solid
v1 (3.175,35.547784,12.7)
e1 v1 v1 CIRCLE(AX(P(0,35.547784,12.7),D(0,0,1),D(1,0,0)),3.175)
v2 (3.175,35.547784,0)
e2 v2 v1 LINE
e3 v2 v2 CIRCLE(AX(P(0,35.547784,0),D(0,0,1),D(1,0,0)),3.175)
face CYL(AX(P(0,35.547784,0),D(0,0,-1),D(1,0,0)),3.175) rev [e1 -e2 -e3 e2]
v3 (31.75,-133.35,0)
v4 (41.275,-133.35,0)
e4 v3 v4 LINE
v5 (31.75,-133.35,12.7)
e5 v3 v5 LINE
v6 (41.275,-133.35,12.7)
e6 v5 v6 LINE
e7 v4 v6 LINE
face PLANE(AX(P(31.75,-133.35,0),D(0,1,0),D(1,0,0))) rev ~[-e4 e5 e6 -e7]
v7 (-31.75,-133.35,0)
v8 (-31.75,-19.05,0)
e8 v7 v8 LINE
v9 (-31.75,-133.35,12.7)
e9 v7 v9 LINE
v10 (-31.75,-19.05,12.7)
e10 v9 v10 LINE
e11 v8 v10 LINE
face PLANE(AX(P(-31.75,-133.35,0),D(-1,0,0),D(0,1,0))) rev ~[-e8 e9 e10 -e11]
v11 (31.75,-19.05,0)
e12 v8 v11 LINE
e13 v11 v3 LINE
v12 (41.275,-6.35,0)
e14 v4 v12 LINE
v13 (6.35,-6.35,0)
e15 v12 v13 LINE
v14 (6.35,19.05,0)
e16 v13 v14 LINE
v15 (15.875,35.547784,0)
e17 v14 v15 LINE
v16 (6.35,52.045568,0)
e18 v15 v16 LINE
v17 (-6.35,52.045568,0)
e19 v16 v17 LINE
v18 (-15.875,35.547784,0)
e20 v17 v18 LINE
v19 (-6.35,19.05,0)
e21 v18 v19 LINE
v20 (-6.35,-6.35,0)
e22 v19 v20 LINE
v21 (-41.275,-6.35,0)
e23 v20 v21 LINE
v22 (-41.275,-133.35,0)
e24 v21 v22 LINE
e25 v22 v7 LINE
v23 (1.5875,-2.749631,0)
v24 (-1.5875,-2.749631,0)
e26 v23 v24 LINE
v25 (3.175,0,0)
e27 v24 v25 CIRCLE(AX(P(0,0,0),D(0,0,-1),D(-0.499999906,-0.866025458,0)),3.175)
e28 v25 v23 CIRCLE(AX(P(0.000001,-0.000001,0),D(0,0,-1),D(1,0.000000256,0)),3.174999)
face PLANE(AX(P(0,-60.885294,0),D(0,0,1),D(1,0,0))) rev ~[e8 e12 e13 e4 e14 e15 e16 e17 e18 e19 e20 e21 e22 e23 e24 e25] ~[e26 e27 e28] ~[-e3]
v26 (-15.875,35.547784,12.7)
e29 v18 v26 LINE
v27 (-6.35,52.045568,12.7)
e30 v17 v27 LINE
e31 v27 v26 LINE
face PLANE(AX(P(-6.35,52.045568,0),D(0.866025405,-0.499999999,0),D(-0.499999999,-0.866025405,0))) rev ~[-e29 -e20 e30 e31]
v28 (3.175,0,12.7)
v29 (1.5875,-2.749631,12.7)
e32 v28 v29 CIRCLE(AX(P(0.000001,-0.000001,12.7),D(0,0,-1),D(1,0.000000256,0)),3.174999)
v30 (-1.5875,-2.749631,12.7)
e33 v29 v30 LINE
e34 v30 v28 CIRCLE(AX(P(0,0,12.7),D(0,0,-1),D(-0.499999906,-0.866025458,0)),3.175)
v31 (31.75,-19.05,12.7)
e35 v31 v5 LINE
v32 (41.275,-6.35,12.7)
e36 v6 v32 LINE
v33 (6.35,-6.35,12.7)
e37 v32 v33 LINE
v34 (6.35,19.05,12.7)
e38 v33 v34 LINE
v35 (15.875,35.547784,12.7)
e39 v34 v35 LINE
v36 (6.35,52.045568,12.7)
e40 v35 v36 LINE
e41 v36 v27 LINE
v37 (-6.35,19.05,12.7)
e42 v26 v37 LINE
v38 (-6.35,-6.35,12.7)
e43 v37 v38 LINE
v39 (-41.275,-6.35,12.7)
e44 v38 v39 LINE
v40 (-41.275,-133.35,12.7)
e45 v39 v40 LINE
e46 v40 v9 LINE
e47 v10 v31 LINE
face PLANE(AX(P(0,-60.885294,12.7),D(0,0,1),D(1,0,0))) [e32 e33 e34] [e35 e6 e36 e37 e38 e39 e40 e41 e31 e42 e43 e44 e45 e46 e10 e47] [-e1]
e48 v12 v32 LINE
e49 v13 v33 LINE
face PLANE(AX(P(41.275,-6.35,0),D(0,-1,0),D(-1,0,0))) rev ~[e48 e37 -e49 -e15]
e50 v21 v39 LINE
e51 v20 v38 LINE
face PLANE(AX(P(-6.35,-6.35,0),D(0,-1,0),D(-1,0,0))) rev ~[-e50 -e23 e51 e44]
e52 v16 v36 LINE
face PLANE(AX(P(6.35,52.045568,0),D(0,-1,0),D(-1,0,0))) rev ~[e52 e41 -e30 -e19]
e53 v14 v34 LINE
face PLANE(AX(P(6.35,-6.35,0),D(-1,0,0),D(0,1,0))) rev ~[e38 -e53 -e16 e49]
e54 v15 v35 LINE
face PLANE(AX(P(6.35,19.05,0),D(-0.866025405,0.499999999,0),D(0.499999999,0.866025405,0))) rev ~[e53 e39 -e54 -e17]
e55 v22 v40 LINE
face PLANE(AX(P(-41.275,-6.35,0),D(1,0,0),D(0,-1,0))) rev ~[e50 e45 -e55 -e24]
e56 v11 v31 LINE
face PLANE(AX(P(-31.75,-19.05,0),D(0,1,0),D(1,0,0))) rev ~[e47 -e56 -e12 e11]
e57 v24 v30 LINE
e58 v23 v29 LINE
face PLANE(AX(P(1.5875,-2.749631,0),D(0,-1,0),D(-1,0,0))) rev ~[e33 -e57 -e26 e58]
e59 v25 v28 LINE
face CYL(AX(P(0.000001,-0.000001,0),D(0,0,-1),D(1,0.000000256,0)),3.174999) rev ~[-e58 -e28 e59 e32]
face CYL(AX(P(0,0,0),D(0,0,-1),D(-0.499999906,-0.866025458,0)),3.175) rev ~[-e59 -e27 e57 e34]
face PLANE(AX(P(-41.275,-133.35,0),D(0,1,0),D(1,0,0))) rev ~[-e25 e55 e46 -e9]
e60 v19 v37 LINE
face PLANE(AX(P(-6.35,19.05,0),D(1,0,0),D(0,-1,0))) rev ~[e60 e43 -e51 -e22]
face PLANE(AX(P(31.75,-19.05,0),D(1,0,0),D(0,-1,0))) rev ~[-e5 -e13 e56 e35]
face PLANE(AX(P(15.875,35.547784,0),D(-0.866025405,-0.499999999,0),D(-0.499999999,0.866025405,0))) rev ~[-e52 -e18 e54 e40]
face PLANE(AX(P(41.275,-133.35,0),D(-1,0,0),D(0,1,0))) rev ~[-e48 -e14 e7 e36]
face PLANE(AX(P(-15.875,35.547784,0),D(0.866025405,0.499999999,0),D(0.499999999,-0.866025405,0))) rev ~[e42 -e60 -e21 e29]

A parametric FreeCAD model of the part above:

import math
import FreeCAD as App
import Part
import Sketcher
from FreeCAD import Vector
Q = App.Units.Quantity

doc = App.newDocument("Part")
body = doc.addObject("PartDesign::Body", "Body")

# Sketch on XY plane
sketch1 = doc.addObject("Sketcher::SketchObject", "Sketch")
body.addObject(sketch1)
sketch1.AttachmentSupport = (doc.XY_Plane, [""])
sketch1.MapMode = "FlatFace"
sketch1.addGeometry([
    Part.LineSegment(Vector(41.3, -6.3, 0), Vector(6.3, -6.3, 0)),  # 0
    Part.LineSegment(Vector(6.3, -6.3, 0), Vector(6.3, 19.1, 0)),  # 1
    Part.LineSegment(Vector(6.3, 19.1, 0), Vector(15.9, 35.5, 0)),  # 2
    Part.LineSegment(Vector(15.9, 35.5, 0), Vector(6.3, 52, 0)),  # 3
    Part.LineSegment(Vector(6.3, 52, 0), Vector(-6.3, 52, 0)),  # 4
    Part.LineSegment(Vector(-6.3, 52, 0), Vector(-15.9, 35.5, 0)),  # 5
    Part.LineSegment(Vector(-15.9, 35.5, 0), Vector(-6.3, 19.1, 0)),  # 6
    Part.LineSegment(Vector(-6.3, 19.1, 0), Vector(-6.3, -6.3, 0)),  # 7
    Part.LineSegment(Vector(-6.3, -6.3, 0), Vector(-41.3, -6.3, 0)),  # 8
    Part.LineSegment(Vector(-41.3, -6.3, 0), Vector(-41.3, -133.3, 0)),  # 9
    Part.LineSegment(Vector(-41.3, -133.3, 0), Vector(-31.8, -133.3, 0)),  # 10
    Part.LineSegment(Vector(-31.8, -133.3, 0), Vector(-31.8, -19.1, 0)),  # 11
    Part.LineSegment(Vector(-31.8, -19.1, 0), Vector(31.8, -19.1, 0)),  # 12
    Part.LineSegment(Vector(31.8, -19.1, 0), Vector(31.8, -133.3, 0)),  # 13
    Part.LineSegment(Vector(31.8, -133.3, 0), Vector(41.3, -133.3, 0)),  # 14
    Part.LineSegment(Vector(41.3, -133.3, 0), Vector(41.3, -6.3, 0)),  # 15
    Part.ArcOfCircle(Part.Circle(Vector(0, 0, 0), Vector(0, 0, 1), 3.2), math.radians(-60), math.radians(0)),  # 16
    Part.LineSegment(Vector(1.6, -2.7, 0), Vector(-1.6, -2.7, 0)),  # 17
    Part.ArcOfCircle(Part.Circle(Vector(0, 0, 0), Vector(0, 0, 1), 3.2), math.radians(0), math.radians(240)),  # 18
    Part.Circle(Vector(0, 35.5, 0), Vector(0, 0, 1), 3.2),  # 19
], False)
sketch1.addConstraint([
    Sketcher.Constraint("Coincident", 0, 2, 1, 1),
    Sketcher.Constraint("Coincident", 1, 2, 2, 1),
    Sketcher.Constraint("Coincident", 2, 2, 3, 1),
    Sketcher.Constraint("Coincident", 3, 2, 4, 1),
    Sketcher.Constraint("Coincident", 4, 2, 5, 1),
    Sketcher.Constraint("Coincident", 5, 2, 6, 1),
    Sketcher.Constraint("Coincident", 6, 2, 7, 1),
    Sketcher.Constraint("Coincident", 7, 2, 8, 1),
    Sketcher.Constraint("Coincident", 8, 2, 9, 1),
    Sketcher.Constraint("Coincident", 9, 2, 10, 1),
    Sketcher.Constraint("Coincident", 10, 2, 11, 1),
    Sketcher.Constraint("Coincident", 11, 2, 12, 1),
    Sketcher.Constraint("Coincident", 12, 2, 13, 1),
    Sketcher.Constraint("Coincident", 13, 2, 14, 1),
    Sketcher.Constraint("Coincident", 14, 2, 15, 1),
    Sketcher.Constraint("Coincident", 15, 2, 0, 1),
    Sketcher.Constraint("Coincident", 16, 1, 17, 1),
    Sketcher.Constraint("Coincident", 17, 2, 18, 2),
    Sketcher.Constraint("Tangent", 18, 1, 16, 2),
    Sketcher.Constraint("Horizontal", 0),
    Sketcher.Constraint("Vertical", 1),
    Sketcher.Constraint("Horizontal", 4),
    Sketcher.Constraint("Vertical", 7),
    Sketcher.Constraint("Horizontal", 8),
    Sketcher.Constraint("Vertical", 9),
    Sketcher.Constraint("Horizontal", 10),
    Sketcher.Constraint("Vertical", 11),
    Sketcher.Constraint("Horizontal", 12),
    Sketcher.Constraint("Vertical", 13),
    Sketcher.Constraint("Horizontal", 14),
    Sketcher.Constraint("Vertical", 15),
    Sketcher.Constraint("Horizontal", 17),
    Sketcher.Constraint("Coincident", 16, 3, -1, 1),
    Sketcher.Constraint("Equal", 16, 18),
    Sketcher.Constraint("Equal", 18, 19),
    Sketcher.Constraint("Symmetric", 2, 2, 5, 2, -2),
    Sketcher.Constraint("Symmetric", 1, 2, 6, 2, -2),
    Sketcher.Constraint("Symmetric", 10, 2, 13, 2, -2),
    Sketcher.Constraint("Symmetric", 8, 2, 15, 2, -2),
    Sketcher.Constraint("PointOnObject", 19, 3, -2),
    Sketcher.Constraint("PointOnObject", 18, 1, -1),
    Sketcher.Constraint("Parallel", 2, 5),
    Sketcher.Constraint("Parallel", 3, 6),
    Sketcher.Constraint("Horizontal", 19, 3, 2, 2),
    Sketcher.Constraint("Vertical", 1, 2, 3, 2),
    Sketcher.Constraint("Diameter", 19, Q("0.25 in")),
    Sketcher.Constraint("DistanceY", 1, 1, 1, 2, Q("1 in")),
    Sketcher.Constraint("DistanceY", 9, 2, 9, 1, Q("5 in")),
    Sketcher.Constraint("DistanceX", 4, 2, 4, 1, Q("0.5 in")),
    Sketcher.Constraint("DistanceX", 12, 1, 12, 2, Q("2.5 in")),
    Sketcher.Constraint("DistanceY", 11, 1, 11, 2, Q("4.5 in")),
    Sketcher.Constraint("Angle", 2, Q("60 deg")),
    Sketcher.Constraint("Distance", 2, Q("0.75 in")),
    Sketcher.Constraint("DistanceX", 0, 2, 0, 1, Q("1.375 in")),
    Sketcher.Constraint("DistanceX", 17, 2, 17, 1, Q("0.125 in")),
    Sketcher.Constraint("DistanceY", 0, 2, -1, 1, Q("0.25 in")),
])
pad1 = doc.addObject("PartDesign::Pad", "Pad")
body.addObject(pad1)
pad1.Profile = sketch1
pad1.Length = Q("0.5 in")

doc.recompute()
